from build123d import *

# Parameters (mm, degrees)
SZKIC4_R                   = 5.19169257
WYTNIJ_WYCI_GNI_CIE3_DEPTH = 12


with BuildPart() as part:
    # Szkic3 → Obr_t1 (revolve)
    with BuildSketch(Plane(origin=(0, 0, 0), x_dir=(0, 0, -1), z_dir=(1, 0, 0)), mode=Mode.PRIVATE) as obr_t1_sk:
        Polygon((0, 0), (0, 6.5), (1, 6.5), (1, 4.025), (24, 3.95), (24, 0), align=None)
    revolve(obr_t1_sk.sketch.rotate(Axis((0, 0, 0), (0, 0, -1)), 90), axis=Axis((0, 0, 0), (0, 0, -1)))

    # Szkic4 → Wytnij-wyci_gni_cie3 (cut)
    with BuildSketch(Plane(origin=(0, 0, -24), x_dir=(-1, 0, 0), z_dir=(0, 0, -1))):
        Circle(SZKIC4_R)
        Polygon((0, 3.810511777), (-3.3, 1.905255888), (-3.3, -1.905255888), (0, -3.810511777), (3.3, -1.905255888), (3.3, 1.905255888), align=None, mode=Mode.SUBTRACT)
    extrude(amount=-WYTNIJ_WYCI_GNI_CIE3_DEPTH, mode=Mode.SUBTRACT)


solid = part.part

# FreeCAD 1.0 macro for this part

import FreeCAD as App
import Part
import Sketcher
Q = App.Units.Quantity

doc = App.newDocument("Part")
params = doc.addObject("Spreadsheet::Sheet", "Params")
for row, (alias, value) in enumerate([
    ("sketch1_height", "24 mm"),
    ("sketch1_height2", "1 mm"),
    ("sketch1_width", "6.5 mm"),
    ("sketch1_width2", "3.95 mm"),
    ("revolution_angle", "360 deg"),
    ("pocket1_length", "12 mm"),
], start=1):
    params.set(f"A{row}", alias)
    params.set(f"B{row}", "=" + value)
    params.setAlias(f"B{row}", alias)

body = doc.addObject("PartDesign::Body", "Body")

sketch1 = body.newObject("Sketcher::SketchObject", "Sketch")
sketch1.AttachmentSupport = (doc.getObject("YZ_Plane"), [""])
sketch1.MapMode = "FlatFace"
sketch1.addGeometry(Part.LineSegment(App.Vector(6.5, 0, 0), App.Vector(0, 0, 0)), False)
sketch1.addGeometry(Part.LineSegment(App.Vector(0, 0, 0), App.Vector(0, -24, 0)), False)
sketch1.addGeometry(Part.LineSegment(App.Vector(0, -24, 0), App.Vector(3.95, -24, 0)), False)
sketch1.addGeometry(Part.LineSegment(App.Vector(3.95, -24, 0), App.Vector(4.025, -1, 0)), False)
sketch1.addGeometry(Part.LineSegment(App.Vector(4.025, -1, 0), App.Vector(6.5, -1, 0)), False)
sketch1.addGeometry(Part.LineSegment(App.Vector(6.5, -1, 0), App.Vector(6.5, 0, 0)), False)
sketch1.addConstraint(Sketcher.Constraint("Coincident", 0, 2, 1, 1))
sketch1.addConstraint(Sketcher.Constraint("Coincident", 1, 2, 2, 1))
sketch1.addConstraint(Sketcher.Constraint("Coincident", 2, 2, 3, 1))
sketch1.addConstraint(Sketcher.Constraint("Coincident", 3, 2, 4, 1))
sketch1.addConstraint(Sketcher.Constraint("Coincident", 4, 2, 5, 1))
sketch1.addConstraint(Sketcher.Constraint("Coincident", 5, 2, 0, 1))
sketch1.addConstraint(Sketcher.Constraint("Horizontal", 0))
sketch1.addConstraint(Sketcher.Constraint("Vertical", 1))
sketch1.addConstraint(Sketcher.Constraint("Horizontal", 2))
sketch1.addConstraint(Sketcher.Constraint("Horizontal", 4))
sketch1.addConstraint(Sketcher.Constraint("Vertical", 5))
sketch1.addConstraint(Sketcher.Constraint("Coincident", 0, 2, -1, 1))
sketch1.addConstraint(Sketcher.Constraint("DistanceY", 1, 2, 1, 1, 24.0))
sketch1.addConstraint(Sketcher.Constraint("DistanceY", 5, 1, 5, 2, 1.0))
sketch1.addConstraint(Sketcher.Constraint("DistanceX", 0, 2, 0, 1, 6.5))
sketch1.addConstraint(Sketcher.Constraint("DistanceX", 2, 1, 2, 2, 3.95))
sketch1.addConstraint(Sketcher.Constraint("DistanceX", 4, 1, 4, 2, 2.475))
sketch1.setExpression("Constraints[12]", "Params.sketch1_height")
sketch1.setExpression("Constraints[13]", "Params.sketch1_height2")
sketch1.setExpression("Constraints[14]", "Params.sketch1_width")
sketch1.setExpression("Constraints[15]", "Params.sketch1_width2")
revolution = body.newObject("PartDesign::Revolution", "Revolution")
revolution.Profile = sketch1
revolution.ReferenceAxis = (sketch1, ["V_Axis"])
revolution.setExpression("Angle", "Params.revolution_angle")

sketch2 = body.newObject("Sketcher::SketchObject", "Sketch001")
sketch2.AttachmentSupport = (doc.getObject("XY_Plane"), [""])
sketch2.MapMode = "FlatFace"
sketch2.AttachmentOffset = App.Placement(App.Vector(0, 0, -24), App.Rotation())
sketch2.addGeometry(Part.Circle(App.Vector(0, 0, 0), App.Vector(0, 0, 1), 5.191693), False)
sketch2.addGeometry(Part.LineSegment(App.Vector(3.3, 1.905256, 0), App.Vector(0, 3.810512, 0)), False)
sketch2.addGeometry(Part.LineSegment(App.Vector(0, 3.810512, 0), App.Vector(-3.3, 1.905256, 0)), False)
sketch2.addGeometry(Part.LineSegment(App.Vector(-3.3, 1.905256, 0), App.Vector(-3.3, -1.905256, 0)), False)
sketch2.addGeometry(Part.LineSegment(App.Vector(-3.3, -1.905256, 0), App.Vector(0, -3.810512, 0)), False)
sketch2.addGeometry(Part.LineSegment(App.Vector(0, -3.810512, 0), App.Vector(3.3, -1.905256, 0)), False)
sketch2.addGeometry(Part.LineSegment(App.Vector(3.3, -1.905256, 0), App.Vector(3.3, 1.905256, 0)), False)
sketch2.addConstraint(Sketcher.Constraint("Coincident", 1, 2, 2, 1))
sketch2.addConstraint(Sketcher.Constraint("Coincident", 2, 2, 3, 1))
sketch2.addConstraint(Sketcher.Constraint("Coincident", 3, 2, 4, 1))
sketch2.addConstraint(Sketcher.Constraint("Coincident", 4, 2, 5, 1))
sketch2.addConstraint(Sketcher.Constraint("Coincident", 5, 2, 6, 1))
sketch2.addConstraint(Sketcher.Constraint("Coincident", 6, 2, 1, 1))
sketch2.addConstraint(Sketcher.Constraint("Vertical", 3))
sketch2.addConstraint(Sketcher.Constraint("Vertical", 6))
sketch2.addConstraint(Sketcher.Constraint("Coincident", 0, 3, -1, 1))
sketch2.addConstraint(Sketcher.Constraint("Symmetric", 1, 2, 4, 2, -1, 1))
sketch2.addConstraint(Sketcher.Constraint("Symmetric", 2, 2, 5, 2, -1, 1))
sketch2.addConstraint(Sketcher.Constraint("PointOnObject", 1, 2, -2))
sketch2.addConstraint(Sketcher.Constraint("Parallel", 1, 4))
sketch2.addConstraint(Sketcher.Constraint("Horizontal", 3, 2, 5, 2))
sketch2.addConstraint(Sketcher.Constraint("Angle", 1, Q("150 deg")))
sketch2.addConstraint(Sketcher.Constraint("DistanceX", 2, 2, -1, 1, 3.3))
sketch2.addConstraint(Sketcher.Constraint("Diameter", 0, 10.383385))
sketch2.addConstraint(Sketcher.Constraint("DistanceY", 3, 2, 3, 1, 3.810512))
pocket1 = body.newObject("PartDesign::Pocket", "Pocket")
pocket1.Profile = sketch2
pocket1.setExpression("Length", "Params.pocket1_length")
pocket1.Reversed = True

doc.recompute()
